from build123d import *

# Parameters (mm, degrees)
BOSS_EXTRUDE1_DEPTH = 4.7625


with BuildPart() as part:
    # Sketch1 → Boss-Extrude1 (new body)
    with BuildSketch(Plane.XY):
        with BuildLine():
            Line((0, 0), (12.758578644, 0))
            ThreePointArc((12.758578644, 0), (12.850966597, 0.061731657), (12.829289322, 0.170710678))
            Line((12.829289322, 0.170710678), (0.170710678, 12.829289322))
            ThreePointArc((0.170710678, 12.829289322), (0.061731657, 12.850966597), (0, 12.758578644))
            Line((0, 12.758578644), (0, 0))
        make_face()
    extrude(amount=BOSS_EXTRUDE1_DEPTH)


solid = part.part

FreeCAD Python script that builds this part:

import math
import FreeCAD as App
import Part
import Sketcher
from FreeCAD import Vector

doc = App.newDocument("Part")
body = doc.addObject("PartDesign::Body", "Body")

# Sketch on XY plane
sketch1 = body.newObject("Sketcher::SketchObject", "Sketch")
sketch1.AttachmentSupport = (doc.getObject("XY_Plane"), [""])
sketch1.MapMode = "FlatFace"
sketch1.addGeometry(Part.LineSegment(Vector(0, 0, 0), Vector(12.76, 0, 0)), False)
sketch1.addGeometry(Part.ArcOfCircle(Part.Circle(Vector(12.76, 0.1, 0), Vector(0, 0, 1), 0.1), math.radians(-90), math.radians(45)), False)
sketch1.addGeometry(Part.LineSegment(Vector(12.83, 0.17, 0), Vector(0.17, 12.83, 0)), False)
sketch1.addGeometry(Part.ArcOfCircle(Part.Circle(Vector(0.1, 12.76, 0), Vector(0, 0, 1), 0.1), math.radians(45), math.radians(180)), False)
sketch1.addGeometry(Part.LineSegment(Vector(0, 12.76, 0), Vector(0, 0, 0)), False)
sketch1.addConstraint(Sketcher.Constraint("Tangent", 0, 2, 1, 1))
sketch1.addConstraint(Sketcher.Constraint("Tangent", 1, 2, 2, 1))
sketch1.addConstraint(Sketcher.Constraint("Tangent", 2, 2, 3, 1))
sketch1.addConstraint(Sketcher.Constraint("Tangent", 3, 2, 4, 1))
sketch1.addConstraint(Sketcher.Constraint("Coincident", 4, 2, 0, 1))
sketch1.addConstraint(Sketcher.Constraint("Horizontal", 0))
sketch1.addConstraint(Sketcher.Constraint("Vertical", 4))
sketch1.addConstraint(Sketcher.Constraint("Coincident", 4, 2, -1, 1))
sketch1.addConstraint(Sketcher.Constraint("Equal", 1, 3))
sketch1.addConstraint(Sketcher.Constraint("Equal", 0, 4))
sketch1.addConstraint(Sketcher.Constraint("Radius", 1, 0.1))
sketch1.addConstraint(Sketcher.Constraint("DistanceX", 0, 1, 0, 2, 12.758579))
pad1 = body.newObject("PartDesign::Pad", "Pad")
pad1.Profile = sketch1
pad1.Length = 4.7625

doc.recompute()
